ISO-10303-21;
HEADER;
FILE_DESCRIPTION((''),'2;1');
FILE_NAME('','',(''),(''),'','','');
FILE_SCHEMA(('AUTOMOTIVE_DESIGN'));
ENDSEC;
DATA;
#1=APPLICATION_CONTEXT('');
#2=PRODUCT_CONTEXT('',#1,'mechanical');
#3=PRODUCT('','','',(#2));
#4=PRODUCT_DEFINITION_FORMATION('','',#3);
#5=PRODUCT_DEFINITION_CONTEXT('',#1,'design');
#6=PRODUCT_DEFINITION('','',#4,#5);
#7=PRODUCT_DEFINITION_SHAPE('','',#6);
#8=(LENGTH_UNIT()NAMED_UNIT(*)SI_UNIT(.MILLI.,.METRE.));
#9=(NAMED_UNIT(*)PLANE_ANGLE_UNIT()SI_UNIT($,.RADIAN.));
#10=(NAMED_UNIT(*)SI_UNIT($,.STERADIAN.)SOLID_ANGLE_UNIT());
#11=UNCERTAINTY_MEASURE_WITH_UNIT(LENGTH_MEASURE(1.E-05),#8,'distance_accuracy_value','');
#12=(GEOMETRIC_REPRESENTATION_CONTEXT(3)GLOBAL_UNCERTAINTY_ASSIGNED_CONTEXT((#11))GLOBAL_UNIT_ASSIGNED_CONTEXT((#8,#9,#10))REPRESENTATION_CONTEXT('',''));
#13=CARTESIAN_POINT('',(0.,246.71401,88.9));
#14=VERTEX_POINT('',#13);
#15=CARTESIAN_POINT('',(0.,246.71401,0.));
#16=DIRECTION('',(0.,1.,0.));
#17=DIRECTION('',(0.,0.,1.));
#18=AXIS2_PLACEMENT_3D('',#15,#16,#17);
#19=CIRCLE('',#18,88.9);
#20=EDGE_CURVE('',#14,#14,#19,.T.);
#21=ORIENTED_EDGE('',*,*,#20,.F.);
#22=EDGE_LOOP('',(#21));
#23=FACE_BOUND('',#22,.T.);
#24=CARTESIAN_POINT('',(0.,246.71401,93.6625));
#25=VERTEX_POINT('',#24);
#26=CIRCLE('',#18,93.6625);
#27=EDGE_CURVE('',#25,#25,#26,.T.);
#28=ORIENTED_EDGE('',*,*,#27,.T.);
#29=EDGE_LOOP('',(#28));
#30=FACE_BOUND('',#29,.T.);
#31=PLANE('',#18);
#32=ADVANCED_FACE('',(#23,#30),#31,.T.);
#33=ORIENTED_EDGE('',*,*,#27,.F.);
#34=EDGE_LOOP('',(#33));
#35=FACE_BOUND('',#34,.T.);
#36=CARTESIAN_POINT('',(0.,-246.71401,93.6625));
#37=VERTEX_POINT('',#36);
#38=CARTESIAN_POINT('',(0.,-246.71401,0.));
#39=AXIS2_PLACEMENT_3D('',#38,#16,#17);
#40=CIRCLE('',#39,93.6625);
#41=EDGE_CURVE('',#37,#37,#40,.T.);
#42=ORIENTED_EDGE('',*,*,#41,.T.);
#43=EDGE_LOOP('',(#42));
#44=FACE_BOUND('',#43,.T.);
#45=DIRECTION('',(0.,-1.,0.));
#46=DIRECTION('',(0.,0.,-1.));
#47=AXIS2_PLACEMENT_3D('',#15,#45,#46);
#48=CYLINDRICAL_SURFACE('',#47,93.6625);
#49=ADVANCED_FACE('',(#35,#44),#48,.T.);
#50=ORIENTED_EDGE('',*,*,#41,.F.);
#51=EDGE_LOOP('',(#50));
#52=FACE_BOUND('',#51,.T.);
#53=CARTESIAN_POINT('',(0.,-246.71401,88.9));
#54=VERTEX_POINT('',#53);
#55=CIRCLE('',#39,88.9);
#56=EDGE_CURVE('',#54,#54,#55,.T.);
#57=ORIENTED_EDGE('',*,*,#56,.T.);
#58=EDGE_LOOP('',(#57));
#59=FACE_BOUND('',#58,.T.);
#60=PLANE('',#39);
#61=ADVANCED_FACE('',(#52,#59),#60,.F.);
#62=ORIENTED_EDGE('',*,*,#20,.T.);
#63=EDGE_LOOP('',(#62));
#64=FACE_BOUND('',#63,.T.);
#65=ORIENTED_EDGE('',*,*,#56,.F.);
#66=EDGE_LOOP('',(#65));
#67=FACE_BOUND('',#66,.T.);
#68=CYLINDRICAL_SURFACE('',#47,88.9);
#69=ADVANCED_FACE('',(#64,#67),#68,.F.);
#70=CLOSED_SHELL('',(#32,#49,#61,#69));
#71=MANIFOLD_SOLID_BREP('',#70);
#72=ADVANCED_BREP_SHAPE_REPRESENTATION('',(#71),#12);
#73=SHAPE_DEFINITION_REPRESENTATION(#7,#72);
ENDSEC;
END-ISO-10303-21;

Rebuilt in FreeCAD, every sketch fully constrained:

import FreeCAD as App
import Part
import Sketcher
from FreeCAD import Vector
Q = App.Units.Quantity

doc = App.newDocument("Part")
body = doc.addObject("PartDesign::Body", "Body")

sketch1 = body.newObject("Sketcher::SketchObject", "Sketch")
sketch1.AttachmentSupport = (doc.getObject("XZ_Plane"), [""])
sketch1.MapMode = "FlatFace"
sketch1.addGeometry(Part.Circle(Vector(0, 0, 0), Vector(0, 0, 1), 93.6625), False)
sketch1.addGeometry(Part.Circle(Vector(0, 0, 0), Vector(0, 0, 1), 88.9), False)
sketch1.addConstraint(Sketcher.Constraint("Coincident", 0, 3, -1, 1))
sketch1.addConstraint(Sketcher.Constraint("Coincident", 1, 3, -1, 1))
sketch1.addConstraint(Sketcher.Constraint("Diameter", 1, Q("7 in")))
sketch1.addConstraint(Sketcher.Constraint("Diameter", 0, Q("7.375 in")))
pad1 = body.newObject("PartDesign::Pad", "Pad")
pad1.Profile = sketch1
pad1.Length = Q("19.4263 in")
pad1.Midplane = True

doc.recompute()
